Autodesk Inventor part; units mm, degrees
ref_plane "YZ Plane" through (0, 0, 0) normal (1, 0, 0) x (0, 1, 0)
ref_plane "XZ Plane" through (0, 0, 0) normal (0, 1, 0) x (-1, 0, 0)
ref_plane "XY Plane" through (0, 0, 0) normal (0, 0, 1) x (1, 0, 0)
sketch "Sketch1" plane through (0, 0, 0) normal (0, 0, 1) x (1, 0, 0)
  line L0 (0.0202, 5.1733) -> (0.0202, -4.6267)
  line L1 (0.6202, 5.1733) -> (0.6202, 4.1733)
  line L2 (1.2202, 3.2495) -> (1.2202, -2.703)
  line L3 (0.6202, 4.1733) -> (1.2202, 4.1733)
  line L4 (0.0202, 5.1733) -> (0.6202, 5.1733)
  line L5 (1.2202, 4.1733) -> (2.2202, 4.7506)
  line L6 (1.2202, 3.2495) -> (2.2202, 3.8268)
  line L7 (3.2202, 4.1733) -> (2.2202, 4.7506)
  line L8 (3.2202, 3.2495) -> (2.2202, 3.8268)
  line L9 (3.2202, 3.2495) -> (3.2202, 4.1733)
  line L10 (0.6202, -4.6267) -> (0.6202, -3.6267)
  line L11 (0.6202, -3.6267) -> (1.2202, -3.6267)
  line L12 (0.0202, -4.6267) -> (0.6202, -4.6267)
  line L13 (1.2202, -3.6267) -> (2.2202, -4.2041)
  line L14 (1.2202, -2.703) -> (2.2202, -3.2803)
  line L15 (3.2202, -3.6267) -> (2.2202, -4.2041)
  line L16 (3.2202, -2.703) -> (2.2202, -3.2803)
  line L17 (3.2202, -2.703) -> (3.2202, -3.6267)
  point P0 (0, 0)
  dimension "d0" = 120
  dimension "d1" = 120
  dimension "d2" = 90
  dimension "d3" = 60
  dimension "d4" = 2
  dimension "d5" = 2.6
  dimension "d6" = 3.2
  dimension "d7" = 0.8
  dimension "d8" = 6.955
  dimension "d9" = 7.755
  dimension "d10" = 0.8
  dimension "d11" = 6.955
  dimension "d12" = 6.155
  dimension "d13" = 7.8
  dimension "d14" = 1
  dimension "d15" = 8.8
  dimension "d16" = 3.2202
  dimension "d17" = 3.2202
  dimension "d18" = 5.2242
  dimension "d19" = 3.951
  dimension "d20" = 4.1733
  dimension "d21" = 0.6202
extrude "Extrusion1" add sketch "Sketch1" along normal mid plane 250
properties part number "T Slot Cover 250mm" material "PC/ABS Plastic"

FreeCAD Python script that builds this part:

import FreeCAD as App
import Part
import Sketcher

doc = App.newDocument("Part")
body = doc.addObject("PartDesign::Body", "Body")

sketch1 = body.newObject("Sketcher::SketchObject", "Sketch")
sketch1.AttachmentSupport = (doc.getObject("XY_Plane"), [""])
sketch1.MapMode = "FlatFace"
sketch1.addGeometry(Part.LineSegment(App.Vector(0.6, 5.2, 0), App.Vector(0, 5.2, 0)), False)
sketch1.addGeometry(Part.LineSegment(App.Vector(0, 5.2, 0), App.Vector(0, -4.6, 0)), False)
sketch1.addGeometry(Part.LineSegment(App.Vector(0, -4.6, 0), App.Vector(0.6, -4.6, 0)), False)
sketch1.addGeometry(Part.LineSegment(App.Vector(0.6, -4.6, 0), App.Vector(0.6, -3.6, 0)), False)
sketch1.addGeometry(Part.LineSegment(App.Vector(0.6, -3.6, 0), App.Vector(1.2, -3.6, 0)), False)
sketch1.addGeometry(Part.LineSegment(App.Vector(1.2, -3.6, 0), App.Vector(2.2, -4.2, 0)), False)
sketch1.addGeometry(Part.LineSegment(App.Vector(2.2, -4.2, 0), App.Vector(3.2, -3.6, 0)), False)
sketch1.addGeometry(Part.LineSegment(App.Vector(3.2, -3.6, 0), App.Vector(3.2, -2.7, 0)), False)
sketch1.addGeometry(Part.LineSegment(App.Vector(3.2, -2.7, 0), App.Vector(2.2, -3.3, 0)), False)
sketch1.addGeometry(Part.LineSegment(App.Vector(2.2, -3.3, 0), App.Vector(1.2, -2.7, 0)), False)
sketch1.addGeometry(Part.LineSegment(App.Vector(1.2, -2.7, 0), App.Vector(1.2, 3.2, 0)), False)
sketch1.addGeometry(Part.LineSegment(App.Vector(1.2, 3.2, 0), App.Vector(2.2, 3.8, 0)), False)
sketch1.addGeometry(Part.LineSegment(App.Vector(2.2, 3.8, 0), App.Vector(3.2, 3.2, 0)), False)
sketch1.addGeometry(Part.LineSegment(App.Vector(3.2, 3.2, 0), App.Vector(3.2, 4.2, 0)), False)
sketch1.addGeometry(Part.LineSegment(App.Vector(3.2, 4.2, 0), App.Vector(2.2, 4.8, 0)), False)
sketch1.addGeometry(Part.LineSegment(App.Vector(2.2, 4.8, 0), App.Vector(1.2, 4.2, 0)), False)
sketch1.addGeometry(Part.LineSegment(App.Vector(1.2, 4.2, 0), App.Vector(0.6, 4.2, 0)), False)
sketch1.addGeometry(Part.LineSegment(App.Vector(0.6, 4.2, 0), App.Vector(0.6, 5.2, 0)), False)
sketch1.addConstraint(Sketcher.Constraint("Coincident", 0, 2, 1, 1))
sketch1.addConstraint(Sketcher.Constraint("Coincident", 1, 2, 2, 1))
sketch1.addConstraint(Sketcher.Constraint("Coincident", 2, 2, 3, 1))
sketch1.addConstraint(Sketcher.Constraint("Coincident", 3, 2, 4, 1))
sketch1.addConstraint(Sketcher.Constraint("Coincident", 4, 2, 5, 1))
sketch1.addConstraint(Sketcher.Constraint("Coincident", 5, 2, 6, 1))
sketch1.addConstraint(Sketcher.Constraint("Coincident", 6, 2, 7, 1))
sketch1.addConstraint(Sketcher.Constraint("Coincident", 7, 2, 8, 1))
sketch1.addConstraint(Sketcher.Constraint("Coincident", 8, 2, 9, 1))
sketch1.addConstraint(Sketcher.Constraint("Coincident", 9, 2, 10, 1))
sketch1.addConstraint(Sketcher.Constraint("Coincident", 10, 2, 11, 1))
sketch1.addConstraint(Sketcher.Constraint("Coincident", 11, 2, 12, 1))
sketch1.addConstraint(Sketcher.Constraint("Coincident", 12, 2, 13, 1))
sketch1.addConstraint(Sketcher.Constraint("Coincident", 13, 2, 14, 1))
sketch1.addConstraint(Sketcher.Constraint("Coincident", 14, 2, 15, 1))
sketch1.addConstraint(Sketcher.Constraint("Coincident", 15, 2, 16, 1))
sketch1.addConstraint(Sketcher.Constraint("Coincident", 16, 2, 17, 1))
sketch1.addConstraint(Sketcher.Constraint("Coincident", 17, 2, 0, 1))
sketch1.addConstraint(Sketcher.Constraint("Horizontal", 0))
sketch1.addConstraint(Sketcher.Constraint("Vertical", 1))
sketch1.addConstraint(Sketcher.Constraint("Horizontal", 2))
sketch1.addConstraint(Sketcher.Constraint("Vertical", 3))
sketch1.addConstraint(Sketcher.Constraint("Horizontal", 4))
sketch1.addConstraint(Sketcher.Constraint("Vertical", 7))
sketch1.addConstraint(Sketcher.Constraint("Vertical", 10))
sketch1.addConstraint(Sketcher.Constraint("Vertical", 13))
sketch1.addConstraint(Sketcher.Constraint("Horizontal", 16))
sketch1.addConstraint(Sketcher.Constraint("Vertical", 17))
sketch1.addConstraint(Sketcher.Constraint("Parallel", 6, 8))
sketch1.addConstraint(Sketcher.Constraint("Parallel", 5, 9))
sketch1.addConstraint(Sketcher.Constraint("Parallel", 8, 11))
sketch1.addConstraint(Sketcher.Constraint("Parallel", 9, 12))
sketch1.addConstraint(Sketcher.Constraint("Parallel", 12, 14))
sketch1.addConstraint(Sketcher.Constraint("Parallel", 11, 15))
sketch1.addConstraint(Sketcher.Constraint("Horizontal", 4, 2, 6, 2))
sketch1.addConstraint(Sketcher.Constraint("Horizontal", 7, 2, 9, 2))
sketch1.addConstraint(Sketcher.Constraint("Horizontal", 10, 2, 12, 2))
sketch1.addConstraint(Sketcher.Constraint("Horizontal", 13, 2, 15, 2))
sketch1.addConstraint(Sketcher.Constraint("Vertical", 5, 2, 8, 2))
sketch1.addConstraint(Sketcher.Constraint("Vertical", 8, 2, 11, 2))
sketch1.addConstraint(Sketcher.Constraint("Vertical", 7, 2, 12, 2))
sketch1.addConstraint(Sketcher.Constraint("Vertical", 11, 2, 14, 2))
sketch1.addConstraint(Sketcher.Constraint("Vertical", 3, 2, 16, 2))
sketch1.addConstraint(Sketcher.Constraint("Equal", 2, 4))
sketch1.addConstraint(Sketcher.Constraint("Equal", 7, 13))
sketch1.addConstraint(Sketcher.Constraint("Equal", 3, 17))
sketch1.addConstraint(Sketcher.Constraint("DistanceY", 3, 1, 3, 2, 1.0))
sketch1.addConstraint(Sketcher.Constraint("DistanceX", 4, 2, 5, 2, 1.0))
sketch1.addConstraint(Sketcher.Constraint("DistanceY", 3, 2, 0, 2, 8.8))
sketch1.addConstraint(Sketcher.Constraint("DistanceX", 3, 2, 6, 2, 2.6))
sketch1.addConstraint(Sketcher.Constraint("DistanceX", -1, 1, 2, 2, 0.6202))
sketch1.addConstraint(Sketcher.Constraint("DistanceY", -1, 1, 13, 2, 4.1733))
sketch1.addConstraint(Sketcher.Constraint("DistanceY", 7, 1, 7, 2, 0.9237))
sketch1.addConstraint(Sketcher.Constraint("DistanceY", 5, 2, -1, 1, 4.204))
pad1 = body.newObject("PartDesign::Pad", "Pad")
pad1.Profile = sketch1
pad1.Length = 250
pad1.Midplane = True

doc.recompute()
